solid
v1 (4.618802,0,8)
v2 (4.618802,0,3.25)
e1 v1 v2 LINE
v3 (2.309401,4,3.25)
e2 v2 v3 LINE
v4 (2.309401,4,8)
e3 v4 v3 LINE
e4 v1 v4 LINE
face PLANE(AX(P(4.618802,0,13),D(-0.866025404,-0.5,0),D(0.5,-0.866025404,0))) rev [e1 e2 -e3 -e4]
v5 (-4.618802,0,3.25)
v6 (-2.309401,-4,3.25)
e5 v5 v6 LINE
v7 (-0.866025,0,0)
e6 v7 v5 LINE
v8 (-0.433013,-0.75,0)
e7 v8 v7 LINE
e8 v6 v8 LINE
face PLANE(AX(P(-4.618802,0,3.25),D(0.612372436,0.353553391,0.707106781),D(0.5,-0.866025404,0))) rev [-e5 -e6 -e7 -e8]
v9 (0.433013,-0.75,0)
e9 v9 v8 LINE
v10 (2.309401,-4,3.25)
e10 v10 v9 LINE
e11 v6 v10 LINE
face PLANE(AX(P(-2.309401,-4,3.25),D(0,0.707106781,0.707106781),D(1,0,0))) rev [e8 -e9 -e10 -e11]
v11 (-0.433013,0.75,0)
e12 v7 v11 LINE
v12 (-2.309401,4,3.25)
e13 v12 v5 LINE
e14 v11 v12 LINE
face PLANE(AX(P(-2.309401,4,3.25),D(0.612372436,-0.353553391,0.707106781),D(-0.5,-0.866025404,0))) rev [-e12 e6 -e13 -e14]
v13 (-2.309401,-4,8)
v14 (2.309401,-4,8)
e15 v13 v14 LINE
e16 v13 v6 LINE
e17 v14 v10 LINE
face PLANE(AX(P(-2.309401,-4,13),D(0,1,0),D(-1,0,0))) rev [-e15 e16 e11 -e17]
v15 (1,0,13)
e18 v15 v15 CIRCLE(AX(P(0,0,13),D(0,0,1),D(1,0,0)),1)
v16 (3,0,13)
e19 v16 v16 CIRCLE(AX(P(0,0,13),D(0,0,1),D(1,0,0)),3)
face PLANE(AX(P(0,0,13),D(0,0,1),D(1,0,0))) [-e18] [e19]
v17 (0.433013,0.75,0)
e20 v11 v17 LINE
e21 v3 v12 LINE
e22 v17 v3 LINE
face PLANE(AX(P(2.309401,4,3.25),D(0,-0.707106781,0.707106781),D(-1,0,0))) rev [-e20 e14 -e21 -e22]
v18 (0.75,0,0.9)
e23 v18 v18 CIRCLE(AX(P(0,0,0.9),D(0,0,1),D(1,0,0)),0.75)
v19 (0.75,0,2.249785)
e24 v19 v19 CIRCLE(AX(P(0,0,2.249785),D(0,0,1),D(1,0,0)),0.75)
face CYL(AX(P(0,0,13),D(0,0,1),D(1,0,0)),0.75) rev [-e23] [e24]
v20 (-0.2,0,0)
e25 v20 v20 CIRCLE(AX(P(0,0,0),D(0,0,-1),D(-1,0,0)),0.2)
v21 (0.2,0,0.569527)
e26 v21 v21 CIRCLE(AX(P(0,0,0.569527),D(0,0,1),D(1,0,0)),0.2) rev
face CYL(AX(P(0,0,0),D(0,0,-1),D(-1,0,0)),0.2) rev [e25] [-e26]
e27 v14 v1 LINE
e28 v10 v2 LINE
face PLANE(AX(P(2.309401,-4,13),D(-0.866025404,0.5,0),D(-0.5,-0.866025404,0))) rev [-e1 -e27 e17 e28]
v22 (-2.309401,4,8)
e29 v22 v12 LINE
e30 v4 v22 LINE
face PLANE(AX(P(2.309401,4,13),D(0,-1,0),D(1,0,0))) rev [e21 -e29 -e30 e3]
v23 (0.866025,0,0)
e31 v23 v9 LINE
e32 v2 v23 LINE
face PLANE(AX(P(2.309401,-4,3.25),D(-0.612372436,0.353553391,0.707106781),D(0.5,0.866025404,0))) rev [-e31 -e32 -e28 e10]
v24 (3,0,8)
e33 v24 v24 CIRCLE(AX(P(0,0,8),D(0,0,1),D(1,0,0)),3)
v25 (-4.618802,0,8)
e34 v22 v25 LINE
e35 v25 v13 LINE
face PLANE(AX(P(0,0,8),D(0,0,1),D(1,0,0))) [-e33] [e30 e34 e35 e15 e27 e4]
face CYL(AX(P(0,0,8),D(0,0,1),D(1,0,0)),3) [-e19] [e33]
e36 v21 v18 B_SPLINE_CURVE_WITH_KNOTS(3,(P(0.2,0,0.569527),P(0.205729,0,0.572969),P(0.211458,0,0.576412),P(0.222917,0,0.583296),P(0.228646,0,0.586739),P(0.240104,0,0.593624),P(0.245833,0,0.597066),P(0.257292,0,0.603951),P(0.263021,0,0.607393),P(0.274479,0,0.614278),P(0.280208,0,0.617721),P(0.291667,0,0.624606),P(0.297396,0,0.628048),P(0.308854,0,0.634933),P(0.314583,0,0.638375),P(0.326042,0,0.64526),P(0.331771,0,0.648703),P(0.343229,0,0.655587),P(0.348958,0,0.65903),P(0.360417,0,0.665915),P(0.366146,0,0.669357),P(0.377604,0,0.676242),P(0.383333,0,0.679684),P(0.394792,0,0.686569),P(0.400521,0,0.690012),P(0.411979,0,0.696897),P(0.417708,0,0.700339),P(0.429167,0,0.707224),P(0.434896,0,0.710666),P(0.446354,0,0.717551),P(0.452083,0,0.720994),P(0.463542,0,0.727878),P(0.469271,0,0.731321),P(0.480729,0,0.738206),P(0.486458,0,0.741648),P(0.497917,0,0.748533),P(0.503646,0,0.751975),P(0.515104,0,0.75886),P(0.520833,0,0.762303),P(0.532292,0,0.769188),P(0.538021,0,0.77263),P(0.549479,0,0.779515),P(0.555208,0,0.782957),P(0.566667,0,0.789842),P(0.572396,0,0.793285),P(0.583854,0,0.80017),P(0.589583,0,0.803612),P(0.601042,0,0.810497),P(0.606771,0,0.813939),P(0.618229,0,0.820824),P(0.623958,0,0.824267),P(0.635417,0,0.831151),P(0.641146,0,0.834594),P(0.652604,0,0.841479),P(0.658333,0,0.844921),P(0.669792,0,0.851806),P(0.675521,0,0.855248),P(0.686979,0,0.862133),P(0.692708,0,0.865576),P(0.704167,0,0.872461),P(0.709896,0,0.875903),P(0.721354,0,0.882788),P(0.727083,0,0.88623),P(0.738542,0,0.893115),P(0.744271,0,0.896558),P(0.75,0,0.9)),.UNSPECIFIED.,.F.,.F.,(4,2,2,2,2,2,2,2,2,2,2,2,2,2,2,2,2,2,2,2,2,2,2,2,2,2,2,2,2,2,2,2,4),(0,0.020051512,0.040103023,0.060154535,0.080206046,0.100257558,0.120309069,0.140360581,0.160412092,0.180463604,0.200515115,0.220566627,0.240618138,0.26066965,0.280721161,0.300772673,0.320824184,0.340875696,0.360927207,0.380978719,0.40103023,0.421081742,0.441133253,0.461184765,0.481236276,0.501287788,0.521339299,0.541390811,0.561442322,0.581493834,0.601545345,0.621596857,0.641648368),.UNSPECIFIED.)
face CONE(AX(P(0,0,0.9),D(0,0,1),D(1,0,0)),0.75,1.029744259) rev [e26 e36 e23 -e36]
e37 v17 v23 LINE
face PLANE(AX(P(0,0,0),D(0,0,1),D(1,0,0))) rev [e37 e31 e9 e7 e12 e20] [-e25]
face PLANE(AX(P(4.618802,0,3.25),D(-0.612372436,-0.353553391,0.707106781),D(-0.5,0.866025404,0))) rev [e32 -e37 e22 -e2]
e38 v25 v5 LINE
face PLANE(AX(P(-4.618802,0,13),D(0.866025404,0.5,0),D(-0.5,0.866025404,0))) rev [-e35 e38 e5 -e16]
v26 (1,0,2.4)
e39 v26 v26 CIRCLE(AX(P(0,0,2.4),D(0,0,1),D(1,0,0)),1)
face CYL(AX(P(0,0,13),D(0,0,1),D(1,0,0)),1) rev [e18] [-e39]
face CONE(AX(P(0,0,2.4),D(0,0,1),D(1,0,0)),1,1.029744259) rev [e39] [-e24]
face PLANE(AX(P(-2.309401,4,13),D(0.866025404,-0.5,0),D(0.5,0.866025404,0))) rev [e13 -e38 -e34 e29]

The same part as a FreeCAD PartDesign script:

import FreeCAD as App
import Part
import Sketcher
Q = App.Units.Quantity


def edges_at(feature, points):
    """Names of the edges that pass closest to the given points."""
    edges = feature.Shape.Edges
    near = lambda p: min(range(len(edges)), key=lambda i: edges[i].distToShape(Part.Vertex(*p))[0])
    return sorted({f"Edge{near(p) + 1}" for p in points})


def add_polygon(sketch, points):
    """Adds a closed chain of lines whose ends are joined by coincident constraints."""
    first, n = sketch.GeometryCount, len(points)
    for a, b in zip(points, points[1:] + points[:1]):
        sketch.addGeometry(Part.LineSegment(App.Vector(*a, 0), App.Vector(*b, 0)), False)
    for i in range(n):
        sketch.addConstraint(Sketcher.Constraint("Coincident", first + i, 2, first + (i + 1) % n, 1))

doc = App.newDocument("Part")
body = doc.addObject("PartDesign::Body", "Body")

# Sketch on XY plane
sketch1 = body.newObject("Sketcher::SketchObject", "Sketch")
sketch1.AttachmentSupport = (doc.getObject("XY_Plane"), [""])
sketch1.MapMode = "FlatFace"
add_polygon(sketch1, [(4.6, 0), (2.3, 4), (-2.3, 4), (-4.6, 0), (-2.3, -4), (2.3, -4)])  # lines 0-5
sketch1.addConstraint([
    Sketcher.Constraint("Horizontal", 1),
    Sketcher.Constraint("Horizontal", 4),
    Sketcher.Constraint("Symmetric", 0, 2, 3, 2, -1, 1),
    Sketcher.Constraint("Symmetric", 2, 2, 5, 2, -1, 1),
    Sketcher.Constraint("PointOnObject", 2, 2, -1),
    Sketcher.Constraint("Parallel", 2, 5),
    Sketcher.Constraint("Vertical", 1, 2, 3, 2),
    Sketcher.Constraint("Angle", 0, Q("120 deg")),
    Sketcher.Constraint("DistanceY", -1, 1, 0, 2, 4.0),
    Sketcher.Constraint("DistanceX", -1, 1, 0, 2, 2.309401),
])
pad1 = body.newObject("PartDesign::Pad", "Pad")
pad1.Profile = sketch1
pad1.Length = 13

# Sketch on XY plane
sketch2 = body.newObject("Sketcher::SketchObject", "Sketch001")
sketch2.AttachmentSupport = (doc.getObject("XY_Plane"), [""])
sketch2.MapMode = "FlatFace"
sketch2.AttachmentOffset = App.Placement(App.Vector(0, 0, 13), App.Rotation())
add_polygon(sketch2, [(-10.7, 5.9), (-10.7, -6.1), (8.2, -6.1), (8.2, 5.9)])  # lines 0-3
sketch2.addGeometry(Part.Circle(App.Vector(0, 0, 0), App.Vector(0, 0, 1), 3), False)  # 4
sketch2.addConstraint([
    Sketcher.Constraint("Vertical", 0),
    Sketcher.Constraint("Horizontal", 1),
    Sketcher.Constraint("Vertical", 2),
    Sketcher.Constraint("Horizontal", 3),
    Sketcher.Constraint("Coincident", 4, 3, -1, 1),
    Sketcher.Constraint("Diameter", 4, 6.0),
    Sketcher.Constraint("DistanceX", 1, 1, 1, 2, 18.874173),
    Sketcher.Constraint("DistanceY", 0, 2, 0, 1, 12.028485),
    Sketcher.Constraint("DistanceY", 0, 2, -1, 1, 6.086688),
    Sketcher.Constraint("DistanceX", 0, 2, -1, 1, 10.658857),
])
pocket1 = body.newObject("PartDesign::Pocket", "Pocket")
pocket1.Profile = sketch2
pocket1.Length = 5
doc.recompute()

chamfer = body.newObject("PartDesign::Chamfer", "Chamfer")
chamfer.Base = (pocket1, edges_at(pocket1, [
    (0, -4, 0),
    (-3.464, -2, 0),
    (-3.464, 2, 0),
    (0, 4, 0),
    (3.464, 2, 0),
    (3.464, -2, 0),
]))
chamfer.Size = 3.25

# Sketch on XY plane
sketch3 = body.newObject("Sketcher::SketchObject", "Sketch002")
sketch3.AttachmentSupport = (doc.getObject("XY_Plane"), [""])
sketch3.MapMode = "FlatFace"
sketch3.AttachmentOffset = App.Placement(App.Vector(0, 0, 13), App.Rotation())
sketch3.addGeometry(Part.Circle(App.Vector(0, 0, 0), App.Vector(0, 0, 1), 0.8), False)
sketch3.addConstraint([
    Sketcher.Constraint("Coincident", 0, 3, -1, 1),
    Sketcher.Constraint("Diameter", 0, 1.5),
])
doc.recompute()
hole = body.newObject("PartDesign::Hole", "Hole")
hole.Profile = sketch3
hole.ThreadType = "None"
hole.Diameter = 1.5
hole.DepthType = "Dimension"
hole.Depth = 12.1
hole.DrillPoint = "Angled"
hole.DrillPointAngle = 118

# Sketch on XY plane
sketch4 = body.newObject("Sketcher::SketchObject", "Sketch003")
sketch4.AttachmentSupport = (doc.getObject("XY_Plane"), [""])
sketch4.MapMode = "FlatFace"
sketch4.AttachmentOffset = App.Placement(App.Vector(0, 0, 13), App.Rotation())
sketch4.addGeometry(Part.Circle(App.Vector(0, 0, 0), App.Vector(0, 0, 1), 1), False)
sketch4.addConstraint([
    Sketcher.Constraint("Coincident", 0, 3, -1, 1),
    Sketcher.Constraint("Diameter", 0, 2.0),
])
doc.recompute()
hole2 = body.newObject("PartDesign::Hole", "Hole001")
hole2.Profile = sketch4
hole2.ThreadType = "None"
hole2.Diameter = 2
hole2.DepthType = "Dimension"
hole2.Depth = 10.6
hole2.DrillPoint = "Angled"
hole2.DrillPointAngle = 118

# Sketch on XY plane
sketch5 = body.newObject("Sketcher::SketchObject", "Sketch004")
sketch5.AttachmentSupport = (doc.getObject("XY_Plane"), [""])
sketch5.MapMode = "FlatFace"
sketch5.addGeometry(Part.Circle(App.Vector(0, 0, 0), App.Vector(0, 0, 1), 0.2), False)
sketch5.addConstraint([
    Sketcher.Constraint("Coincident", 0, 3, -1, 1),
    Sketcher.Constraint("Diameter", 0, 0.4),
])
doc.recompute()
hole3 = body.newObject("PartDesign::Hole", "Hole002")
hole3.Profile = sketch5
hole3.ThreadType = "None"
hole3.Diameter = 0.4
hole3.DepthType = "Dimension"
hole3.Depth = 1
hole3.DrillPoint = "Angled"
hole3.DrillPointAngle = 118
hole3.Reversed = True

doc.recompute()
